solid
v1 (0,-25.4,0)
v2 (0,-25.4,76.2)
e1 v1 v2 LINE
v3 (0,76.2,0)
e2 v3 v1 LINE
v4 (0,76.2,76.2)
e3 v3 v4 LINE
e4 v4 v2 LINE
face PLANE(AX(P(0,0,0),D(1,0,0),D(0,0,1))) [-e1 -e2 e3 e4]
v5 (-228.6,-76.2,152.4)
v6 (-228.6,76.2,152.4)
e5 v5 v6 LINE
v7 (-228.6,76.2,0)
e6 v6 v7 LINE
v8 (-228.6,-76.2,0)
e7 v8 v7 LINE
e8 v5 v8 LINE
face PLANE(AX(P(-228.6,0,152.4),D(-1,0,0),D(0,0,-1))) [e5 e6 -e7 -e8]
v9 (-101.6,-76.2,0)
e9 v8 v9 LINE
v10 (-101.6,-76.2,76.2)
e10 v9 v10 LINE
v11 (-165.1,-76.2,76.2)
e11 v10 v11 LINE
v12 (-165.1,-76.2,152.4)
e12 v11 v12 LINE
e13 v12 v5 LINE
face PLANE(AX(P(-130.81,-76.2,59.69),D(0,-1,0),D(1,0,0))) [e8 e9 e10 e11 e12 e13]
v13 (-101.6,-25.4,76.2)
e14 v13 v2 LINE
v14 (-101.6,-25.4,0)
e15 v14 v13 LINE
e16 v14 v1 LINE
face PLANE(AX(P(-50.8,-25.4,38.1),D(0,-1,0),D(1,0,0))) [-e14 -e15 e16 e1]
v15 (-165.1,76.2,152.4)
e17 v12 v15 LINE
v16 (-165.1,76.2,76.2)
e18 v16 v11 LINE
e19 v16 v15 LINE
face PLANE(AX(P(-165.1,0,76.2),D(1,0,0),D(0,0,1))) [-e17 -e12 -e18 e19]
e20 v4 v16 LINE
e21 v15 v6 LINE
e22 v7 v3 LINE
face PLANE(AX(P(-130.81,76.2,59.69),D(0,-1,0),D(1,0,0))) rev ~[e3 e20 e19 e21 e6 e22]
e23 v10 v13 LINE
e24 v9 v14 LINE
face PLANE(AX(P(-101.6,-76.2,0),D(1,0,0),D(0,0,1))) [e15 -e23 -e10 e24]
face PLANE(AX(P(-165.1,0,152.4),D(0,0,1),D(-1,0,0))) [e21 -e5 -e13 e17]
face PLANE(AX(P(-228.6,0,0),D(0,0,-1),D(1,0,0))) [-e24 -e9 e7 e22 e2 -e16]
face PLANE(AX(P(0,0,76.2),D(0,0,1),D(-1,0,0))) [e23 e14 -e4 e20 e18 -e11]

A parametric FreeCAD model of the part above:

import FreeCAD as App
import Part
import Sketcher

V = App.Vector
Q = App.Units.Quantity


def add_polygon(sketch, points):
    """Adds a closed chain of lines whose ends are joined by coincident constraints."""
    first, n = sketch.GeometryCount, len(points)
    for a, b in zip(points, points[1:] + points[:1]):
        sketch.addGeometry(Part.LineSegment(App.Vector(*a, 0), App.Vector(*b, 0)), False)
    for i in range(n):
        sketch.addConstraint(Sketcher.Constraint("Coincident", first + i, 2, first + (i + 1) % n, 1))

doc = App.newDocument("Part")
body = doc.addObject("PartDesign::Body", "Body")

# Sketch on XZ plane
sketch1 = body.newObject("Sketcher::SketchObject", "Sketch")
sketch1.AttachmentSupport = (doc.getObject("XZ_Plane"), [""])
sketch1.MapMode = "FlatFace"
add_polygon(sketch1, [(-229, 0), (0, 0), (0, 76), (-165, 76), (-165, 152), (-229, 152)])  # lines 0-5
sketch1.addConstraint([
    Sketcher.Constraint("Horizontal", 0),
    Sketcher.Constraint("Vertical", 1),
    Sketcher.Constraint("Horizontal", 2),
    Sketcher.Constraint("Vertical", 3),
    Sketcher.Constraint("Horizontal", 4),
    Sketcher.Constraint("Vertical", 5),
    Sketcher.Constraint("Coincident", 0, 2, -1, 1),
    Sketcher.Constraint("Equal", 1, 3),
    Sketcher.Constraint("DistanceX", 0, 1, 0, 2, Q("9 in")),
    Sketcher.Constraint("DistanceY", 1, 1, 1, 2, Q("3 in")),
    Sketcher.Constraint("DistanceX", 2, 2, 2, 1, Q("6.5 in")),
])
pad1 = body.newObject("PartDesign::Pad", "Pad")
pad1.Profile = sketch1
pad1.Length = Q("6 in")
pad1.Midplane = True

# Sketch on XZ plane
sketch2 = body.newObject("Sketcher::SketchObject", "Sketch001")
sketch2.AttachmentSupport = (doc.getObject("XZ_Plane"), [""])
sketch2.MapMode = "FlatFace"
sketch2.AttachmentOffset = App.Placement(V(0, 0, 3 * 25.4), App.Rotation())
add_polygon(sketch2, [(-102, 76), (-102, 0), (0, 0), (0, 76)])  # lines 0-3
sketch2.addConstraint([
    Sketcher.Constraint("Vertical", 0),
    Sketcher.Constraint("Horizontal", 1),
    Sketcher.Constraint("Vertical", 2),
    Sketcher.Constraint("Horizontal", 3),
    Sketcher.Constraint("Coincident", 1, 2, -1, 1),
    Sketcher.Constraint("DistanceX", 1, 1, 1, 2, Q("4 in")),
    Sketcher.Constraint("DistanceY", 0, 2, 0, 1, Q("3 in")),
])
pocket1 = body.newObject("PartDesign::Pocket", "Pocket")
pocket1.Profile = sketch2
pocket1.Length = Q("2 in")

doc.recompute()
